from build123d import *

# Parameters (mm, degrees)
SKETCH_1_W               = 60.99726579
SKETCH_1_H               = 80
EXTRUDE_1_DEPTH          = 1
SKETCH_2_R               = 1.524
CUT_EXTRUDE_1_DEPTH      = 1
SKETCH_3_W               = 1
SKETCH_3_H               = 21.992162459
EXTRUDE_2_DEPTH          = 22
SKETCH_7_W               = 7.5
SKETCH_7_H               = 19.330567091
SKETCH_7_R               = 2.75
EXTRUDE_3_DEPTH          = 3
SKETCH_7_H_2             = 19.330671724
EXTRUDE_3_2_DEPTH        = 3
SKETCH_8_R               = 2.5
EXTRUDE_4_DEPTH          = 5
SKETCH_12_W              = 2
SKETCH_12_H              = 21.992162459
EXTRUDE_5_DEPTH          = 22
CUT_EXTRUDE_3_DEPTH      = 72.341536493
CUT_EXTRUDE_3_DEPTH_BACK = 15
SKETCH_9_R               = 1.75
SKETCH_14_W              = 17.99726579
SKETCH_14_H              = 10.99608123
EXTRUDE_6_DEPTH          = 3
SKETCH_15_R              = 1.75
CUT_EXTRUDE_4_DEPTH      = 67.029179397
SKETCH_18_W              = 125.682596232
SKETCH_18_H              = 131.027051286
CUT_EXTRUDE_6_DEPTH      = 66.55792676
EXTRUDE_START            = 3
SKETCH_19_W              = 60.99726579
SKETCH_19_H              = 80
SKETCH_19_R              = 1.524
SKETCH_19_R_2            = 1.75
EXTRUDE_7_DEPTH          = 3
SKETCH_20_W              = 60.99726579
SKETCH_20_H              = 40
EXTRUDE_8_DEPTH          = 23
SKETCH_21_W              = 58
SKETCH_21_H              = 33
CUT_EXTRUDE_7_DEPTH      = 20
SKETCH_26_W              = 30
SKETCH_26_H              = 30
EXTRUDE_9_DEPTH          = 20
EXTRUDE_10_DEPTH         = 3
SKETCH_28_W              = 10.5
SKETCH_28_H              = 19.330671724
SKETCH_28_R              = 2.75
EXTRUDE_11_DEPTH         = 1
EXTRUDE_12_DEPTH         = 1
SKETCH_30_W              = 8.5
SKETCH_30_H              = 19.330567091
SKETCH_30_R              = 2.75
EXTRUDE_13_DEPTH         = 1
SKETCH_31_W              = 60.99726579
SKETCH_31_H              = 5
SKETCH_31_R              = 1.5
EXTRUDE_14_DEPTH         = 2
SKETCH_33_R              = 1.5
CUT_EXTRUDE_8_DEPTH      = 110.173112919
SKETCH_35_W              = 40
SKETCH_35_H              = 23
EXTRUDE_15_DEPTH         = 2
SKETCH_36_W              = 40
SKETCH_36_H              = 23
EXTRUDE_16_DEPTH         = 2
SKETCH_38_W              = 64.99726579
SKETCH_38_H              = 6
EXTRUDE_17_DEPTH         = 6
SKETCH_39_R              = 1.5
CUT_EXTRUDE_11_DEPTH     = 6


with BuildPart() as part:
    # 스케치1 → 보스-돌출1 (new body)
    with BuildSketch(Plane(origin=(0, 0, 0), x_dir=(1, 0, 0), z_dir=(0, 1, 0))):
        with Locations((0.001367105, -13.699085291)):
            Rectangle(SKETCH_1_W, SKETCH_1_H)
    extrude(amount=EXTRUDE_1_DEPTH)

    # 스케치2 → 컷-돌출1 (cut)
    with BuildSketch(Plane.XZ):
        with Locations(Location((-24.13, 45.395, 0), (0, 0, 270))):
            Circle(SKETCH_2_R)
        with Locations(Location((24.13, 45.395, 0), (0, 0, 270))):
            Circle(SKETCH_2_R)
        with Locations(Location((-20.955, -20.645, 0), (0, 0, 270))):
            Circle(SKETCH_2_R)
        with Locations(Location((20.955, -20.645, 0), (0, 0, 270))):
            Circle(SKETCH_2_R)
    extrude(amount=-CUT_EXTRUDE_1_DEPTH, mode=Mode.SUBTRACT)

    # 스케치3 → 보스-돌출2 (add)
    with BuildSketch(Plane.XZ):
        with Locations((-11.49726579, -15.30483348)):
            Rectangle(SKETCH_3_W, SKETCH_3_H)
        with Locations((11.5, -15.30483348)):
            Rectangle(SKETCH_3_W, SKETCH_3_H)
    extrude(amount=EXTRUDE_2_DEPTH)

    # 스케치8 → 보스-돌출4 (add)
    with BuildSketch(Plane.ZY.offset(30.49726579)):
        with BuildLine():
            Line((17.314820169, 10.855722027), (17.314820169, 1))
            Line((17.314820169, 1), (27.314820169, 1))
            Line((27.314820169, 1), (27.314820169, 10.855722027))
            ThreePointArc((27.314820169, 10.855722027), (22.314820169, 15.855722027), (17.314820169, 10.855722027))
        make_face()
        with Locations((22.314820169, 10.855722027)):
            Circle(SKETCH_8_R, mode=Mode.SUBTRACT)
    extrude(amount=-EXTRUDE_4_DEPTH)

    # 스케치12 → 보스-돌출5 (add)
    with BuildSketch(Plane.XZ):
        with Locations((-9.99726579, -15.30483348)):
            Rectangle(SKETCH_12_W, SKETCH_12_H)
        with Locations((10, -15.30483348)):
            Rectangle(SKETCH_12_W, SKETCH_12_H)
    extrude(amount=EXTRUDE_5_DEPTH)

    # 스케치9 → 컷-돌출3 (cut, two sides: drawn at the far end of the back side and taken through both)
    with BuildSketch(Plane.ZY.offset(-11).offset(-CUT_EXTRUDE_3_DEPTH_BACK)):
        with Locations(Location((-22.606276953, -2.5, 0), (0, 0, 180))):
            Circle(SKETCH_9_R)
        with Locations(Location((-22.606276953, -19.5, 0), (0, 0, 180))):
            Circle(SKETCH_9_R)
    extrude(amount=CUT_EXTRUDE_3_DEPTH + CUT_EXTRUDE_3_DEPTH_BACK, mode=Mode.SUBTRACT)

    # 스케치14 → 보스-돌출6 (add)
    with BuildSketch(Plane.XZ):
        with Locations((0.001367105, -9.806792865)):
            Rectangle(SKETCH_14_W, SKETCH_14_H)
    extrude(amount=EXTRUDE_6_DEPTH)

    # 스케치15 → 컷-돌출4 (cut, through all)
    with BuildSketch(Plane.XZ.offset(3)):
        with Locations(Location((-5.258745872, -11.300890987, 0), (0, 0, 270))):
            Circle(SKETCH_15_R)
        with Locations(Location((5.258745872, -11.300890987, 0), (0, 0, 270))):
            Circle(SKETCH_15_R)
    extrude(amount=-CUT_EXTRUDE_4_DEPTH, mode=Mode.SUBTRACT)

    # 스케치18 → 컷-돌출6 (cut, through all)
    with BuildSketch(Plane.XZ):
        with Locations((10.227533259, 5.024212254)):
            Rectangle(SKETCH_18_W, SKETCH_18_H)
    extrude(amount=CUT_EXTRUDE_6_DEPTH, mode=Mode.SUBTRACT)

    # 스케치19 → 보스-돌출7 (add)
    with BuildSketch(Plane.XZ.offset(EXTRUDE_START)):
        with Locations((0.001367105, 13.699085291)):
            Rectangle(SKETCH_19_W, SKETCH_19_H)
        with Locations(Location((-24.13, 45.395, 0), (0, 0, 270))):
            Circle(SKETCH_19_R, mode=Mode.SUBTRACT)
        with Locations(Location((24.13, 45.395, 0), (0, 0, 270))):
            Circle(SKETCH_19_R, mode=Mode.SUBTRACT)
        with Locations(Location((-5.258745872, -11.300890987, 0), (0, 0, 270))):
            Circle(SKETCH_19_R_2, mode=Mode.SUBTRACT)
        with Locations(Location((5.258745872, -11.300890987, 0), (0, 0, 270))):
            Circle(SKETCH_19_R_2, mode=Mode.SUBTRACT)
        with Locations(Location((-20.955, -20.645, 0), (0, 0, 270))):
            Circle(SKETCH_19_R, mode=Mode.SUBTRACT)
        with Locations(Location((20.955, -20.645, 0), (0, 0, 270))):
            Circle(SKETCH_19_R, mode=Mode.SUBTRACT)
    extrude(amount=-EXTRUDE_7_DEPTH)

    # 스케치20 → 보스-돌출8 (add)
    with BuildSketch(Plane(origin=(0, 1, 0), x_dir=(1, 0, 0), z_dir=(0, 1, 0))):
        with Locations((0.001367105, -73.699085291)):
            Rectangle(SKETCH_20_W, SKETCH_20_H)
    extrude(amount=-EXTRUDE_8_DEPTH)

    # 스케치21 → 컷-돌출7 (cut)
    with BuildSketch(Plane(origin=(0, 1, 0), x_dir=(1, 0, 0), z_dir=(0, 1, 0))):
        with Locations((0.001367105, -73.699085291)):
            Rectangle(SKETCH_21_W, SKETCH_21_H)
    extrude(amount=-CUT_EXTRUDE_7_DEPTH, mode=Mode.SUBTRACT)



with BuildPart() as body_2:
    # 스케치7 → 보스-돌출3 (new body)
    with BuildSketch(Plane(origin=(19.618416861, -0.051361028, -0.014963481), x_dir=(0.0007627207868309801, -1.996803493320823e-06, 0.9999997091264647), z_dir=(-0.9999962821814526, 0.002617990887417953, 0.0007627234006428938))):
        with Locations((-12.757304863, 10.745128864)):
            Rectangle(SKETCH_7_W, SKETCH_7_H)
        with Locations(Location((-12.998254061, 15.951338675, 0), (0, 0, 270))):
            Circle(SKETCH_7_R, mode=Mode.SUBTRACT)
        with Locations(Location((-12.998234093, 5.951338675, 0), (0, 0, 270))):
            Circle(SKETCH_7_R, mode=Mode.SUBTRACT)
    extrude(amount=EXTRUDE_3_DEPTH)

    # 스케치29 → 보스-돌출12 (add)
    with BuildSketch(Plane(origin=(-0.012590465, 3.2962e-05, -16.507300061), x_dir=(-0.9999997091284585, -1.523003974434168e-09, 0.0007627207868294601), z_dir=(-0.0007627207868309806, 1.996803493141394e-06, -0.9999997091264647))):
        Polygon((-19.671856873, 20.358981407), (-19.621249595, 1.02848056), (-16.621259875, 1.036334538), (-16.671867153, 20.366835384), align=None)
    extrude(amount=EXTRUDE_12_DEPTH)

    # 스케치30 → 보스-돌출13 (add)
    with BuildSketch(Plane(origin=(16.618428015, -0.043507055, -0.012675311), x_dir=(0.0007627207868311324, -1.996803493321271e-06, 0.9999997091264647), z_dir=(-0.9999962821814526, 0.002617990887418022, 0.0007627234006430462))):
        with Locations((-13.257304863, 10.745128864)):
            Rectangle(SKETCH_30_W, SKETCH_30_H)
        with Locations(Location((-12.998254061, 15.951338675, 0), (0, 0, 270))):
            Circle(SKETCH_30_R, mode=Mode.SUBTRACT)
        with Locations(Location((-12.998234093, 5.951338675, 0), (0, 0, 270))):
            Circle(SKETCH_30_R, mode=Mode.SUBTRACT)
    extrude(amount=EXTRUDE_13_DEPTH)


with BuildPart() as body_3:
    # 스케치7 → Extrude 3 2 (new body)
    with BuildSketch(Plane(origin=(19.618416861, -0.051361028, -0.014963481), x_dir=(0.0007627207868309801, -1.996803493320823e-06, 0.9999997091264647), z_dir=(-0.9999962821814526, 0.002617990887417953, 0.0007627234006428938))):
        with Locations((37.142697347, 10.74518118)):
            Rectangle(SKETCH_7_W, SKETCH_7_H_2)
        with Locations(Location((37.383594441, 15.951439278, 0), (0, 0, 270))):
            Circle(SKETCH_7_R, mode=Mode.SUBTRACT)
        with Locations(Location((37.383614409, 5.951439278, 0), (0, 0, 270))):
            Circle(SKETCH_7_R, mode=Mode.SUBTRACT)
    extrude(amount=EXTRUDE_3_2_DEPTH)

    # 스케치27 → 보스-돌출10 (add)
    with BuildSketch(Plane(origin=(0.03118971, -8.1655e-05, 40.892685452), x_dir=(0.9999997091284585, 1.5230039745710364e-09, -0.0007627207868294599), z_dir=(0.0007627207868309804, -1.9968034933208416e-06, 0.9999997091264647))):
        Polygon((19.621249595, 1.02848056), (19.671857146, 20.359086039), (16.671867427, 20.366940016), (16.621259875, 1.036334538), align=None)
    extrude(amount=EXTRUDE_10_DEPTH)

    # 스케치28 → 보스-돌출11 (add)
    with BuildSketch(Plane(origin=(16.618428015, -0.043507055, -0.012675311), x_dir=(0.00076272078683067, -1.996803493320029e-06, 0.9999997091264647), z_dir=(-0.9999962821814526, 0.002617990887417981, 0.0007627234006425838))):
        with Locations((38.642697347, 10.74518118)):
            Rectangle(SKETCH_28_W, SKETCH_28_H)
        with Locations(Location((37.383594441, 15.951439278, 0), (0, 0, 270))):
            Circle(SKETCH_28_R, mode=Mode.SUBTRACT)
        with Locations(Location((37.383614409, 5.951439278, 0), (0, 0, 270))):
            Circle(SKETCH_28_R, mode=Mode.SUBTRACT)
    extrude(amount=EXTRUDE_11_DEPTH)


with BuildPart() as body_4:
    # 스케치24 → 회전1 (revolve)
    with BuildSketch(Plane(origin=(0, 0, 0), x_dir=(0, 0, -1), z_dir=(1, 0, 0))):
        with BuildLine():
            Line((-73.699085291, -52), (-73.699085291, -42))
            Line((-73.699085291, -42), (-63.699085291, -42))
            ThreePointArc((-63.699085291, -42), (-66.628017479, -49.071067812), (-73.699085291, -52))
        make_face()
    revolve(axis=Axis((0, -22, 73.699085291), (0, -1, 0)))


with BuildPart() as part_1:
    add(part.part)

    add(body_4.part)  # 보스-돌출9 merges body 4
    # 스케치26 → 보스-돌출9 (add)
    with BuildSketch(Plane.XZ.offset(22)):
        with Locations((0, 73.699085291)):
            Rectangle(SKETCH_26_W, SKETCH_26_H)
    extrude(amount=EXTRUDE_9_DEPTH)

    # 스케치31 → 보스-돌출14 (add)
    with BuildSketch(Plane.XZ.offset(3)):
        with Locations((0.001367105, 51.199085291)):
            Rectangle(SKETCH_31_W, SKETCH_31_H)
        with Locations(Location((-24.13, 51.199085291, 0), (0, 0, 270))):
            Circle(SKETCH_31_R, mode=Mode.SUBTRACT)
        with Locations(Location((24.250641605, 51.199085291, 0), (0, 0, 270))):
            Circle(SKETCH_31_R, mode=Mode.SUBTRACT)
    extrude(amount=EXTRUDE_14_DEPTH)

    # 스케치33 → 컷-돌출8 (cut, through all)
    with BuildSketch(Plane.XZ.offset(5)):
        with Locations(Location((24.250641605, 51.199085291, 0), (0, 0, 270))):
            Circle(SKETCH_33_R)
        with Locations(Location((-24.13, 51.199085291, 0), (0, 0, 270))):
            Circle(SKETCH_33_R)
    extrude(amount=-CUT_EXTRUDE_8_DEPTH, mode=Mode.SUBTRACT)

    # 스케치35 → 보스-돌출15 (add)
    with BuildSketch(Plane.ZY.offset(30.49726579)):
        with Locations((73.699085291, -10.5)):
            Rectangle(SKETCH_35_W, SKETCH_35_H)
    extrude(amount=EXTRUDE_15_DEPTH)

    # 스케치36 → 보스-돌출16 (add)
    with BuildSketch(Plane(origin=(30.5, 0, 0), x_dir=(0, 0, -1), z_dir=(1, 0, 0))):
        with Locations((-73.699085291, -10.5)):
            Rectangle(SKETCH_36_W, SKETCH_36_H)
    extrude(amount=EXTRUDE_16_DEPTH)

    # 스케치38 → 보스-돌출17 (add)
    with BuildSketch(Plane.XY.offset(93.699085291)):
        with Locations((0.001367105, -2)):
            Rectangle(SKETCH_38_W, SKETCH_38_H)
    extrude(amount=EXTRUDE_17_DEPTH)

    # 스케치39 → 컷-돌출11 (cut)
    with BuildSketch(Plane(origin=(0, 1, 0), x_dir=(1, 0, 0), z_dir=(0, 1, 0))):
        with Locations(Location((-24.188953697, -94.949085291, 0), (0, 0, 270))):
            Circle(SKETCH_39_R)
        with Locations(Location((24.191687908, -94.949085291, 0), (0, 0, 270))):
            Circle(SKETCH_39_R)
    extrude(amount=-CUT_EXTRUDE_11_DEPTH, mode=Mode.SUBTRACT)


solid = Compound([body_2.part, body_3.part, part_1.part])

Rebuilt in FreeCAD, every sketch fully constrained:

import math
import FreeCAD as App
import Part
import Sketcher
Q = App.Units.Quantity

doc = App.newDocument("Part")
body = doc.addObject("PartDesign::Body", "Body")

# Sketch on XZ plane
sketch1 = body.newObject("Sketcher::SketchObject", "Sketch")
sketch1.AttachmentSupport = (doc.getObject("XZ_Plane"), [""])
sketch1.MapMode = "FlatFace"
sketch1.addGeometry([
    Part.LineSegment(App.Vector(-30, -26, 0), App.Vector(-30, 54, 0)),
    Part.LineSegment(App.Vector(-30, 54, 0), App.Vector(30, 54, 0)),
    Part.LineSegment(App.Vector(30, 54, 0), App.Vector(30, -26, 0)),
    Part.LineSegment(App.Vector(30, -26, 0), App.Vector(-30, -26, 0)),
], False)
sketch1.addConstraint([
    Sketcher.Constraint("Coincident", 0, 2, 1, 1),
    Sketcher.Constraint("Coincident", 1, 2, 2, 1),
    Sketcher.Constraint("Coincident", 2, 2, 3, 1),
    Sketcher.Constraint("Coincident", 3, 2, 0, 1),
    Sketcher.Constraint("Vertical", 0),
    Sketcher.Constraint("Horizontal", 1),
    Sketcher.Constraint("Vertical", 2),
    Sketcher.Constraint("Horizontal", 3),
    Sketcher.Constraint("DistanceY", 0, 1, 0, 2, Q("80 mm")),
    Sketcher.Constraint("DistanceX", -1, 1, 1, 2, Q("30.5 mm")),
    Sketcher.Constraint("DistanceX", 1, 1, 1, 2, Q("60.997266 mm")),
    Sketcher.Constraint("DistanceY", -1, 1, 0, 2, Q("53.699085 mm")),
])
pad1 = body.newObject("PartDesign::Pad", "Pad")
pad1.Profile = sketch1
pad1.Length = 1
pad1.Reversed = True

# Sketch on XZ plane
sketch2 = body.newObject("Sketcher::SketchObject", "Sketch001")
sketch2.AttachmentSupport = (doc.getObject("XZ_Plane"), [""])
sketch2.MapMode = "FlatFace"
sketch2.addGeometry([
    Part.Circle(App.Vector(-24.1, 45.4, 0), App.Vector(0, 0, 1), 1.5),
    Part.Circle(App.Vector(24.1, 45.4, 0), App.Vector(0, 0, 1), 1.5),
    Part.Circle(App.Vector(-21, -20.6, 0), App.Vector(0, 0, 1), 1.5),
    Part.Circle(App.Vector(21, -20.6, 0), App.Vector(0, 0, 1), 1.5),
], False)
sketch2.addConstraint([
    Sketcher.Constraint("Equal", 0, 1),
    Sketcher.Constraint("Equal", 1, 2),
    Sketcher.Constraint("Equal", 2, 3),
    Sketcher.Constraint("Symmetric", 0, 3, 1, 3, -2),
    Sketcher.Constraint("Symmetric", 2, 3, 3, 3, -2),
    Sketcher.Constraint("Diameter", 0, Q("3.048 mm")),
    Sketcher.Constraint("DistanceX", 0, 3, -1, 1, Q("24.13 mm")),
    Sketcher.Constraint("DistanceY", 2, 3, 0, 3, Q("66.04 mm")),
    Sketcher.Constraint("DistanceX", 2, 3, 3, 3, Q("41.91 mm")),
    Sketcher.Constraint("DistanceY", -1, 1, 0, 3, Q("45.395 mm")),
])
pocket1 = body.newObject("PartDesign::Pocket", "Pocket")
pocket1.Profile = sketch2
pocket1.Length = 1

# Sketch on XZ plane
sketch3 = body.newObject("Sketcher::SketchObject", "Sketch002")
sketch3.AttachmentSupport = (doc.getObject("XZ_Plane"), [""])
sketch3.MapMode = "FlatFace"
sketch3.addGeometry([
    Part.LineSegment(App.Vector(-12, -4.3, 0), App.Vector(-12, -26.3, 0)),  # 0
    Part.LineSegment(App.Vector(-12, -26.3, 0), App.Vector(-11, -26.3, 0)),  # 1
    Part.LineSegment(App.Vector(-11, -26.3, 0), App.Vector(-11, -4.3, 0)),  # 2
    Part.LineSegment(App.Vector(-11, -4.3, 0), App.Vector(-12, -4.3, 0)),  # 3
    Part.LineSegment(App.Vector(11, -4.3, 0), App.Vector(11, -26.3, 0)),  # 4
    Part.LineSegment(App.Vector(11, -26.3, 0), App.Vector(12, -26.3, 0)),  # 5
    Part.LineSegment(App.Vector(12, -26.3, 0), App.Vector(12, -4.3, 0)),  # 6
    Part.LineSegment(App.Vector(12, -4.3, 0), App.Vector(11, -4.3, 0)),  # 7
], False)
sketch3.addConstraint([
    Sketcher.Constraint("Coincident", 0, 2, 1, 1),
    Sketcher.Constraint("Coincident", 1, 2, 2, 1),
    Sketcher.Constraint("Coincident", 2, 2, 3, 1),
    Sketcher.Constraint("Coincident", 3, 2, 0, 1),
    Sketcher.Constraint("Coincident", 4, 2, 5, 1),
    Sketcher.Constraint("Coincident", 5, 2, 6, 1),
    Sketcher.Constraint("Coincident", 6, 2, 7, 1),
    Sketcher.Constraint("Coincident", 7, 2, 4, 1),
    Sketcher.Constraint("Vertical", 0),
    Sketcher.Constraint("Horizontal", 1),
    Sketcher.Constraint("Vertical", 2),
    Sketcher.Constraint("Horizontal", 3),
    Sketcher.Constraint("Vertical", 4),
    Sketcher.Constraint("Horizontal", 5),
    Sketcher.Constraint("Vertical", 6),
    Sketcher.Constraint("Horizontal", 7),
    Sketcher.Constraint("Horizontal", 1, 2, 4, 2),
    Sketcher.Constraint("Horizontal", 3, 2, 6, 2),
    Sketcher.Constraint("Equal", 3, 5),
    Sketcher.Constraint("DistanceX", 1, 1, 1, 2, Q("1 mm")),
    Sketcher.Constraint("DistanceX", -1, 1, 4, 2, Q("11 mm")),
    Sketcher.Constraint("DistanceY", 0, 2, 0, 1, Q("21.992162 mm")),
    Sketcher.Constraint("DistanceX", 0, 2, -1, 1, Q("11.997266 mm")),
    Sketcher.Constraint("DistanceY", 0, 2, -1, 1, Q("26.300915 mm")),
])
pad2 = body.newObject("PartDesign::Pad", "Pad001")
pad2.Profile = sketch3
pad2.Length = 22

# Sketch on YZ plane
sketch4 = body.newObject("Sketcher::SketchObject", "Sketch003")
sketch4.AttachmentSupport = (doc.getObject("YZ_Plane"), [""])
sketch4.MapMode = "FlatFace"
sketch4.AttachmentOffset = App.Placement(App.Vector(0, 0, -30.497266), App.Rotation())
sketch4.addGeometry([
    Part.LineSegment(App.Vector(10.9, 17.3, 0), App.Vector(1, 17.3, 0)),  # 0
    Part.LineSegment(App.Vector(1, 17.3, 0), App.Vector(1, 27.3, 0)),  # 1
    Part.LineSegment(App.Vector(1, 27.3, 0), App.Vector(10.9, 27.3, 0)),  # 2
    Part.ArcOfCircle(Part.Circle(App.Vector(10.9, 22.3, 0), App.Vector(0, 0, 1), 5), math.radians(-90), math.radians(90)),  # 3
    Part.Circle(App.Vector(10.9, 22.3, 0), App.Vector(0, 0, 1), 2.5),  # 4
], False)
sketch4.addConstraint([
    Sketcher.Constraint("Coincident", 0, 2, 1, 1),
    Sketcher.Constraint("Coincident", 1, 2, 2, 1),
    Sketcher.Constraint("Tangent", 2, 2, 3, 2),
    Sketcher.Constraint("Tangent", 3, 1, 0, 1),
    Sketcher.Constraint("Horizontal", 0),
    Sketcher.Constraint("Vertical", 1),
    Sketcher.Constraint("Horizontal", 2),
    Sketcher.Constraint("Coincident", 4, 3, 3, 3),
    Sketcher.Constraint("Diameter", 4, Q("5 mm")),
    Sketcher.Constraint("Radius", 3, Q("5 mm")),
    Sketcher.Constraint("DistanceX", -1, 1, 0, 2, Q("1 mm")),
    Sketcher.Constraint("DistanceX", 0, 2, 0, 1, Q("9.855722 mm")),
    Sketcher.Constraint("DistanceY", -1, 1, 3, 3, Q("22.31482 mm")),
])
pad3 = body.newObject("PartDesign::Pad", "Pad002")
pad3.Profile = sketch4
pad3.Length = 5

# Sketch on XZ plane
sketch5 = body.newObject("Sketcher::SketchObject", "Sketch004")
sketch5.AttachmentSupport = (doc.getObject("XZ_Plane"), [""])
sketch5.MapMode = "FlatFace"
sketch5.addGeometry([
    Part.LineSegment(App.Vector(-11, -4.3, 0), App.Vector(-11, -26.3, 0)),  # 0
    Part.LineSegment(App.Vector(-11, -26.3, 0), App.Vector(-9, -26.3, 0)),  # 1
    Part.LineSegment(App.Vector(-9, -26.3, 0), App.Vector(-9, -4.3, 0)),  # 2
    Part.LineSegment(App.Vector(-9, -4.3, 0), App.Vector(-11, -4.3, 0)),  # 3
    Part.LineSegment(App.Vector(9, -4.3, 0), App.Vector(9, -26.3, 0)),  # 4
    Part.LineSegment(App.Vector(9, -26.3, 0), App.Vector(11, -26.3, 0)),  # 5
    Part.LineSegment(App.Vector(11, -26.3, 0), App.Vector(11, -4.3, 0)),  # 6
    Part.LineSegment(App.Vector(11, -4.3, 0), App.Vector(9, -4.3, 0)),  # 7
], False)
sketch5.addConstraint([
    Sketcher.Constraint("Coincident", 0, 2, 1, 1),
    Sketcher.Constraint("Coincident", 1, 2, 2, 1),
    Sketcher.Constraint("Coincident", 2, 2, 3, 1),
    Sketcher.Constraint("Coincident", 3, 2, 0, 1),
    Sketcher.Constraint("Coincident", 4, 2, 5, 1),
    Sketcher.Constraint("Coincident", 5, 2, 6, 1),
    Sketcher.Constraint("Coincident", 6, 2, 7, 1),
    Sketcher.Constraint("Coincident", 7, 2, 4, 1),
    Sketcher.Constraint("Vertical", 0),
    Sketcher.Constraint("Horizontal", 1),
    Sketcher.Constraint("Vertical", 2),
    Sketcher.Constraint("Horizontal", 3),
    Sketcher.Constraint("Vertical", 4),
    Sketcher.Constraint("Horizontal", 5),
    Sketcher.Constraint("Vertical", 6),
    Sketcher.Constraint("Horizontal", 7),
    Sketcher.Constraint("Horizontal", 1, 2, 4, 2),
    Sketcher.Constraint("Horizontal", 3, 2, 6, 2),
    Sketcher.Constraint("Equal", 3, 5),
    Sketcher.Constraint("DistanceX", 1, 1, 1, 2, Q("2 mm")),
    Sketcher.Constraint("DistanceX", -1, 1, 4, 2, Q("9 mm")),
    Sketcher.Constraint("DistanceY", 0, 2, 0, 1, Q("21.992162 mm")),
    Sketcher.Constraint("DistanceX", 0, 2, -1, 1, Q("10.997266 mm")),
    Sketcher.Constraint("DistanceY", 0, 2, -1, 1, Q("26.300915 mm")),
])
pad4 = body.newObject("PartDesign::Pad", "Pad003")
pad4.Profile = sketch5
pad4.Length = 22

# Sketch on YZ plane
sketch6 = body.newObject("Sketcher::SketchObject", "Sketch005")
sketch6.AttachmentSupport = (doc.getObject("YZ_Plane"), [""])
sketch6.MapMode = "FlatFace"
sketch6.AttachmentOffset = App.Placement(App.Vector(0, 0, 11), App.Rotation())
sketch6.addGeometry([
    Part.Circle(App.Vector(-2.5, -22.6, 0), App.Vector(0, 0, 1), 1.8),
    Part.Circle(App.Vector(-19.5, -22.6, 0), App.Vector(0, 0, 1), 1.8),
], False)
sketch6.addConstraint([
    Sketcher.Constraint("Equal", 0, 1),
    Sketcher.Constraint("Horizontal", 0, 3, 1, 3),
    Sketcher.Constraint("Diameter", 0, Q("3.5 mm")),
    Sketcher.Constraint("DistanceX", 1, 3, 0, 3, Q("17 mm")),
    Sketcher.Constraint("DistanceX", 0, 3, -1, 1, Q("2.5 mm")),
    Sketcher.Constraint("DistanceY", 0, 3, -1, 1, Q("22.606277 mm")),
])
pocket2 = body.newObject("PartDesign::Pocket", "Pocket001")
pocket2.Profile = sketch6
pocket2.Type = "ThroughAll"
pocket2.Midplane = True

# Sketch on XZ plane
sketch7 = body.newObject("Sketcher::SketchObject", "Sketch006")
sketch7.AttachmentSupport = (doc.getObject("XZ_Plane"), [""])
sketch7.MapMode = "FlatFace"
sketch7.addGeometry([
    Part.LineSegment(App.Vector(-9, -4, 0), App.Vector(-9, -15, 0)),
    Part.LineSegment(App.Vector(-9, -15, 0), App.Vector(9, -15, 0)),
    Part.LineSegment(App.Vector(9, -15, 0), App.Vector(9, -4, 0)),
    Part.LineSegment(App.Vector(9, -4, 0), App.Vector(-9, -4, 0)),
], False)
sketch7.addConstraint([
    Sketcher.Constraint("Coincident", 0, 2, 1, 1),
    Sketcher.Constraint("Coincident", 1, 2, 2, 1),
    Sketcher.Constraint("Coincident", 2, 2, 3, 1),
    Sketcher.Constraint("Coincident", 3, 2, 0, 1),
    Sketcher.Constraint("Vertical", 0),
    Sketcher.Constraint("Horizontal", 1),
    Sketcher.Constraint("Vertical", 2),
    Sketcher.Constraint("Horizontal", 3),
    Sketcher.Constraint("DistanceX", -1, 1, 1, 2, Q("9 mm")),
    Sketcher.Constraint("DistanceY", 0, 2, 0, 1, Q("10.996081 mm")),
    Sketcher.Constraint("DistanceX", 1, 1, 1, 2, Q("17.997266 mm")),
    Sketcher.Constraint("DistanceY", 0, 2, -1, 1, Q("15.304833 mm")),
])
pad5 = body.newObject("PartDesign::Pad", "Pad004")
pad5.Profile = sketch7
pad5.Length = 3

# Sketch on XZ plane
sketch8 = body.newObject("Sketcher::SketchObject", "Sketch007")
sketch8.AttachmentSupport = (doc.getObject("XZ_Plane"), [""])
sketch8.MapMode = "FlatFace"
sketch8.AttachmentOffset = App.Placement(App.Vector(0, 0, 3), App.Rotation())
sketch8.addGeometry([
    Part.Circle(App.Vector(-5.3, -11.3, 0), App.Vector(0, 0, 1), 1.8),
    Part.Circle(App.Vector(5.3, -11.3, 0), App.Vector(0, 0, 1), 1.8),
], False)
sketch8.addConstraint([
    Sketcher.Constraint("Equal", 0, 1),
    Sketcher.Constraint("Symmetric", 0, 3, 1, 3, -2),
    Sketcher.Constraint("Diameter", 0, Q("3.5 mm")),
    Sketcher.Constraint("DistanceY", 0, 3, -1, 1, Q("11.300891 mm")),
    Sketcher.Constraint("DistanceX", 0, 3, 1, 3, Q("10.517492 mm")),
])
pocket3 = body.newObject("PartDesign::Pocket", "Pocket002")
pocket3.Profile = sketch8
pocket3.Type = "ThroughAll"

# Sketch on XZ plane
sketch9 = body.newObject("Sketcher::SketchObject", "Sketch008")
sketch9.AttachmentSupport = (doc.getObject("XZ_Plane"), [""])
sketch9.MapMode = "FlatFace"
sketch9.addGeometry([
    Part.LineSegment(App.Vector(-53, 71, 0), App.Vector(-53, -60, 0)),
    Part.LineSegment(App.Vector(-53, -60, 0), App.Vector(73, -60, 0)),
    Part.LineSegment(App.Vector(73, -60, 0), App.Vector(73, 71, 0)),
    Part.LineSegment(App.Vector(73, 71, 0), App.Vector(-53, 71, 0)),
], False)
sketch9.addConstraint([
    Sketcher.Constraint("Coincident", 0, 2, 1, 1),
    Sketcher.Constraint("Coincident", 1, 2, 2, 1),
    Sketcher.Constraint("Coincident", 2, 2, 3, 1),
    Sketcher.Constraint("Coincident", 3, 2, 0, 1),
    Sketcher.Constraint("Vertical", 0),
    Sketcher.Constraint("Horizontal", 1),
    Sketcher.Constraint("Vertical", 2),
    Sketcher.Constraint("Horizontal", 3),
    Sketcher.Constraint("DistanceY", 0, 2, 0, 1, Q("131.027051 mm")),
    Sketcher.Constraint("DistanceX", 1, 1, 1, 2, Q("125.682596 mm")),
    Sketcher.Constraint("DistanceX", -1, 1, 1, 2, Q("73.068831 mm")),
    Sketcher.Constraint("DistanceY", 0, 2, -1, 1, Q("60.489313 mm")),
])
pocket4 = body.newObject("PartDesign::Pocket", "Pocket003")
pocket4.Profile = sketch9
pocket4.Type = "ThroughAll"
pocket4.Reversed = True

# Sketch on XZ plane
sketch10 = body.newObject("Sketcher::SketchObject", "Sketch009")
sketch10.AttachmentSupport = (doc.getObject("XZ_Plane"), [""])
sketch10.MapMode = "FlatFace"
sketch10.AttachmentOffset = App.Placement(App.Vector(0, 0, 3), App.Rotation())
sketch10.addGeometry([
    Part.LineSegment(App.Vector(-30.5, 53.7, 0), App.Vector(-30.5, -26.3, 0)),  # 0
    Part.LineSegment(App.Vector(-30.5, -26.3, 0), App.Vector(30.5, -26.3, 0)),  # 1
    Part.LineSegment(App.Vector(30.5, -26.3, 0), App.Vector(30.5, 53.7, 0)),  # 2
    Part.LineSegment(App.Vector(30.5, 53.7, 0), App.Vector(-30.5, 53.7, 0)),  # 3
    Part.Circle(App.Vector(-21, -20.6, 0), App.Vector(0, 0, 1), 1.5),  # 4
    Part.Circle(App.Vector(-5.3, -11.3, 0), App.Vector(0, 0, 1), 1.8),  # 5
    Part.Circle(App.Vector(5.3, -11.3, 0), App.Vector(0, 0, 1), 1.8),  # 6
    Part.Circle(App.Vector(21, -20.6, 0), App.Vector(0, 0, 1), 1.5),  # 7
    Part.Circle(App.Vector(-24.1, 45.4, 0), App.Vector(0, 0, 1), 1.5),  # 8
    Part.Circle(App.Vector(24.1, 45.4, 0), App.Vector(0, 0, 1), 1.5),  # 9
], False)
sketch10.addConstraint([
    Sketcher.Constraint("Coincident", 0, 2, 1, 1),
    Sketcher.Constraint("Coincident", 1, 2, 2, 1),
    Sketcher.Constraint("Coincident", 2, 2, 3, 1),
    Sketcher.Constraint("Coincident", 3, 2, 0, 1),
    Sketcher.Constraint("Vertical", 0),
    Sketcher.Constraint("Horizontal", 1),
    Sketcher.Constraint("Vertical", 2),
    Sketcher.Constraint("Horizontal", 3),
    Sketcher.Constraint("Equal", 5, 6),
    Sketcher.Constraint("Equal", 4, 7),
    Sketcher.Constraint("Equal", 7, 8),
    Sketcher.Constraint("Equal", 8, 9),
    Sketcher.Constraint("Symmetric", 5, 3, 6, 3, -2),
    Sketcher.Constraint("Symmetric", 4, 3, 7, 3, -2),
    Sketcher.Constraint("Symmetric", 8, 3, 9, 3, -2),
    Sketcher.Constraint("Diameter", 5, Q("3.5 mm")),
    Sketcher.Constraint("DistanceY", 0, 2, 0, 1, Q("80 mm")),
    Sketcher.Constraint("Diameter", 4, Q("3.048 mm")),
    Sketcher.Constraint("DistanceX", -1, 1, 1, 2, Q("30.5 mm")),
    Sketcher.Constraint("DistanceX", 8, 3, -1, 1, Q("24.13 mm")),
    Sketcher.Constraint("DistanceX", 4, 3, 7, 3, Q("41.91 mm")),
    Sketcher.Constraint("DistanceY", 4, 3, 8, 3, Q("66.04 mm")),
    Sketcher.Constraint("DistanceY", 4, 3, -1, 1, Q("20.645 mm")),
    Sketcher.Constraint("DistanceX", 1, 1, 1, 2, Q("60.997266 mm")),
    Sketcher.Constraint("DistanceY", 5, 3, -1, 1, Q("11.300891 mm")),
    Sketcher.Constraint("DistanceX", 5, 3, 6, 3, Q("10.517492 mm")),
    Sketcher.Constraint("DistanceY", 0, 2, -1, 1, Q("26.300915 mm")),
])
pad6 = body.newObject("PartDesign::Pad", "Pad005")
pad6.Profile = sketch10
pad6.Length = 3
pad6.Reversed = True

# Sketch on XZ plane
sketch11 = body.newObject("Sketcher::SketchObject", "Sketch010")
sketch11.AttachmentSupport = (doc.getObject("XZ_Plane"), [""])
sketch11.MapMode = "FlatFace"
sketch11.AttachmentOffset = App.Placement(App.Vector(0, 0, -1), App.Rotation())
sketch11.addGeometry([
    Part.LineSegment(App.Vector(-30, 54, 0), App.Vector(-30, 94, 0)),
    Part.LineSegment(App.Vector(-30, 94, 0), App.Vector(30, 94, 0)),
    Part.LineSegment(App.Vector(30, 94, 0), App.Vector(30, 54, 0)),
    Part.LineSegment(App.Vector(30, 54, 0), App.Vector(-30, 54, 0)),
], False)
sketch11.addConstraint([
    Sketcher.Constraint("Coincident", 0, 2, 1, 1),
    Sketcher.Constraint("Coincident", 1, 2, 2, 1),
    Sketcher.Constraint("Coincident", 2, 2, 3, 1),
    Sketcher.Constraint("Coincident", 3, 2, 0, 1),
    Sketcher.Constraint("Vertical", 0),
    Sketcher.Constraint("Horizontal", 1),
    Sketcher.Constraint("Vertical", 2),
    Sketcher.Constraint("Horizontal", 3),
    Sketcher.Constraint("DistanceY", 0, 1, 0, 2, Q("40 mm")),
    Sketcher.Constraint("DistanceX", -1, 1, 1, 2, Q("30.5 mm")),
    Sketcher.Constraint("DistanceX", 1, 1, 1, 2, Q("60.997266 mm")),
    Sketcher.Constraint("DistanceY", -1, 1, 0, 2, Q("93.699085 mm")),
])
pad7 = body.newObject("PartDesign::Pad", "Pad006")
pad7.Profile = sketch11
pad7.Length = 23

# Sketch on XZ plane
sketch12 = body.newObject("Sketcher::SketchObject", "Sketch011")
sketch12.AttachmentSupport = (doc.getObject("XZ_Plane"), [""])
sketch12.MapMode = "FlatFace"
sketch12.AttachmentOffset = App.Placement(App.Vector(0, 0, -1), App.Rotation())
sketch12.addGeometry([
    Part.LineSegment(App.Vector(-29, 57, 0), App.Vector(-29, 90, 0)),
    Part.LineSegment(App.Vector(-29, 90, 0), App.Vector(29, 90, 0)),
    Part.LineSegment(App.Vector(29, 90, 0), App.Vector(29, 57, 0)),
    Part.LineSegment(App.Vector(29, 57, 0), App.Vector(-29, 57, 0)),
], False)
sketch12.addConstraint([
    Sketcher.Constraint("Coincident", 0, 2, 1, 1),
    Sketcher.Constraint("Coincident", 1, 2, 2, 1),
    Sketcher.Constraint("Coincident", 2, 2, 3, 1),
    Sketcher.Constraint("Coincident", 3, 2, 0, 1),
    Sketcher.Constraint("Vertical", 0),
    Sketcher.Constraint("Horizontal", 1),
    Sketcher.Constraint("Vertical", 2),
    Sketcher.Constraint("Horizontal", 3),
    Sketcher.Constraint("DistanceX", 1, 1, 1, 2, Q("58 mm")),
    Sketcher.Constraint("DistanceY", 0, 1, 0, 2, Q("33 mm")),
    Sketcher.Constraint("DistanceX", 0, 2, -1, 1, Q("28.998633 mm")),
    Sketcher.Constraint("DistanceY", -1, 1, 0, 2, Q("90.199085 mm")),
])
pocket5 = body.newObject("PartDesign::Pocket", "Pocket004")
pocket5.Profile = sketch12
pocket5.Length = 20
pocket5.Reversed = True
body2 = doc.addObject("PartDesign::Body", "Body001")

# Sketch on an angled plane
sketch13 = body2.newObject("Sketcher::SketchObject", "Sketch012")
sketch13.Placement = App.Placement(App.Vector(19.618417, -0.051361, -0.014963), App.Rotation(App.Vector(0.000762721, -0.000001997, 0.999999709), App.Vector(0.002617992, 0.999996573, 0), App.Vector(-0.999996282, 0.002617991, 0.000762723), "ZXY"))
sketch13.addGeometry([
    Part.LineSegment(App.Vector(-16.5, 20.4, 0), App.Vector(-16.5, 1.1, 0)),  # 0
    Part.LineSegment(App.Vector(-16.5, 1.1, 0), App.Vector(-9, 1.1, 0)),  # 1
    Part.LineSegment(App.Vector(-9, 1.1, 0), App.Vector(-9, 20.4, 0)),  # 2
    Part.LineSegment(App.Vector(-9, 20.4, 0), App.Vector(-16.5, 20.4, 0)),  # 3
    Part.Circle(App.Vector(-13, 6, 0), App.Vector(0, 0, 1), 2.8),  # 4
    Part.Circle(App.Vector(-13, 16, 0), App.Vector(0, 0, 1), 2.8),  # 5
], False)
sketch13.addConstraint([
    Sketcher.Constraint("Coincident", 0, 2, 1, 1),
    Sketcher.Constraint("Coincident", 1, 2, 2, 1),
    Sketcher.Constraint("Coincident", 2, 2, 3, 1),
    Sketcher.Constraint("Coincident", 3, 2, 0, 1),
    Sketcher.Constraint("Vertical", 0),
    Sketcher.Constraint("Horizontal", 1),
    Sketcher.Constraint("Vertical", 2),
    Sketcher.Constraint("Horizontal", 3),
    Sketcher.Constraint("Equal", 4, 5),
    Sketcher.Constraint("Diameter", 4, Q("5.5 mm")),
    Sketcher.Constraint("DistanceX", 1, 1, 1, 2, Q("7.5 mm")),
    Sketcher.Constraint("DistanceY", 4, 3, 5, 3, Q("10 mm")),
    Sketcher.Constraint("DistanceY", 0, 2, 0, 1, Q("19.330567 mm")),
    Sketcher.Constraint("DistanceY", -1, 1, 4, 3, Q("5.951339 mm")),
    Sketcher.Constraint("DistanceX", 0, 2, 4, 3, Q("3.509071 mm")),
    Sketcher.Constraint("DistanceX", 0, 2, 5, 3, Q("3.509051 mm")),
    Sketcher.Constraint("DistanceX", 4, 3, -1, 1, Q("12.998234 mm")),
    Sketcher.Constraint("DistanceY", -1, 1, 0, 2, Q("1.079845 mm")),
])
pad8 = body2.newObject("PartDesign::Pad", "Pad007")
pad8.Profile = sketch13
pad8.Length = 3

# Sketch on an angled plane
sketch14 = body2.newObject("Sketcher::SketchObject", "Sketch013")
sketch14.Placement = App.Placement(App.Vector(-0.01259, 0.000033, -16.5073), App.Rotation(App.Vector(-0.999999709, -0.000000002, 0.000762721), App.Vector(0, 1, 0.000001997), App.Vector(-0.000762721, 0.000001997, -0.999999709), "ZXY"))
sketch14.addGeometry([
    Part.LineSegment(App.Vector(-19.7, 20.4, 0), App.Vector(-19.6, 1, 0)),
    Part.LineSegment(App.Vector(-19.6, 1, 0), App.Vector(-16.6, 1, 0)),
    Part.LineSegment(App.Vector(-16.6, 1, 0), App.Vector(-16.7, 20.4, 0)),
    Part.LineSegment(App.Vector(-16.7, 20.4, 0), App.Vector(-19.7, 20.4, 0)),
], False)
sketch14.addConstraint([
    Sketcher.Constraint("Coincident", 0, 2, 1, 1),
    Sketcher.Constraint("Coincident", 1, 2, 2, 1),
    Sketcher.Constraint("Coincident", 2, 2, 3, 1),
    Sketcher.Constraint("Coincident", 3, 2, 0, 1),
    Sketcher.Constraint("Perpendicular", 0, 1),
    Sketcher.Constraint("Perpendicular", 1, 2),
    Sketcher.Constraint("Perpendicular", 2, 3),
    Sketcher.Constraint("Distance", 1, Q("3 mm")),
    Sketcher.Constraint("Angle", 0, Q("-89.85 deg")),
    Sketcher.Constraint("DistanceY", 1, 2, 2, 2, Q("19.330501 mm")),
    Sketcher.Constraint("DistanceX", 0, 2, -1, 1, Q("19.62125 mm")),
    Sketcher.Constraint("DistanceY", -1, 1, 0, 2, Q("1.028481 mm")),
])
pad9 = body2.newObject("PartDesign::Pad", "Pad008")
pad9.Profile = sketch14
pad9.Length = 1

# Sketch on an angled plane
sketch15 = body2.newObject("Sketcher::SketchObject", "Sketch014")
sketch15.Placement = App.Placement(App.Vector(16.618428, -0.043507, -0.012675), App.Rotation(App.Vector(0.000762721, -0.000001997, 0.999999709), App.Vector(0.002617992, 0.999996573, 0), App.Vector(-0.999996282, 0.002617991, 0.000762723), "ZXY"))
sketch15.addGeometry([
    Part.LineSegment(App.Vector(-17.5, 20.4, 0), App.Vector(-17.5, 1.1, 0)),  # 0
    Part.LineSegment(App.Vector(-17.5, 1.1, 0), App.Vector(-9, 1.1, 0)),  # 1
    Part.LineSegment(App.Vector(-9, 1.1, 0), App.Vector(-9, 20.4, 0)),  # 2
    Part.LineSegment(App.Vector(-9, 20.4, 0), App.Vector(-17.5, 20.4, 0)),  # 3
    Part.Circle(App.Vector(-13, 6, 0), App.Vector(0, 0, 1), 2.8),  # 4
    Part.Circle(App.Vector(-13, 16, 0), App.Vector(0, 0, 1), 2.8),  # 5
], False)
sketch15.addConstraint([
    Sketcher.Constraint("Coincident", 0, 2, 1, 1),
    Sketcher.Constraint("Coincident", 1, 2, 2, 1),
    Sketcher.Constraint("Coincident", 2, 2, 3, 1),
    Sketcher.Constraint("Coincident", 3, 2, 0, 1),
    Sketcher.Constraint("Vertical", 0),
    Sketcher.Constraint("Horizontal", 1),
    Sketcher.Constraint("Vertical", 2),
    Sketcher.Constraint("Horizontal", 3),
    Sketcher.Constraint("Equal", 4, 5),
    Sketcher.Constraint("Diameter", 4, Q("5.5 mm")),
    Sketcher.Constraint("DistanceX", 1, 1, 1, 2, Q("8.5 mm")),
    Sketcher.Constraint("DistanceY", 4, 3, 5, 3, Q("10 mm")),
    Sketcher.Constraint("DistanceY", 0, 2, 0, 1, Q("19.330567 mm")),
    Sketcher.Constraint("DistanceY", -1, 1, 4, 3, Q("5.951339 mm")),
    Sketcher.Constraint("DistanceX", 0, 2, 4, 3, Q("4.509071 mm")),
    Sketcher.Constraint("DistanceX", 0, 2, 5, 3, Q("4.509051 mm")),
    Sketcher.Constraint("DistanceX", 4, 3, -1, 1, Q("12.998234 mm")),
    Sketcher.Constraint("DistanceY", -1, 1, 0, 2, Q("1.079845 mm")),
])
pad10 = body2.newObject("PartDesign::Pad", "Pad009")
pad10.Profile = sketch15
pad10.Length = 1
body3 = doc.addObject("PartDesign::Body", "Body002")

# Sketch on an angled plane
sketch16 = body3.newObject("Sketcher::SketchObject", "Sketch015")
sketch16.Placement = App.Placement(App.Vector(19.618417, -0.051361, -0.014963), App.Rotation(App.Vector(0.000762721, -0.000001997, 0.999999709), App.Vector(0.002617992, 0.999996573, 0), App.Vector(-0.999996282, 0.002617991, 0.000762723), "ZXY"))
sketch16.addGeometry([
    Part.LineSegment(App.Vector(33.4, 20.4, 0), App.Vector(33.4, 1.1, 0)),  # 0
    Part.LineSegment(App.Vector(33.4, 1.1, 0), App.Vector(40.9, 1.1, 0)),  # 1
    Part.LineSegment(App.Vector(40.9, 1.1, 0), App.Vector(40.9, 20.4, 0)),  # 2
    Part.LineSegment(App.Vector(40.9, 20.4, 0), App.Vector(33.4, 20.4, 0)),  # 3
    Part.Circle(App.Vector(37.4, 6, 0), App.Vector(0, 0, 1), 2.8),  # 4
    Part.Circle(App.Vector(37.4, 16, 0), App.Vector(0, 0, 1), 2.8),  # 5
], False)
sketch16.addConstraint([
    Sketcher.Constraint("Coincident", 0, 2, 1, 1),
    Sketcher.Constraint("Coincident", 1, 2, 2, 1),
    Sketcher.Constraint("Coincident", 2, 2, 3, 1),
    Sketcher.Constraint("Coincident", 3, 2, 0, 1),
    Sketcher.Constraint("Vertical", 0),
    Sketcher.Constraint("Horizontal", 1),
    Sketcher.Constraint("Vertical", 2),
    Sketcher.Constraint("Horizontal", 3),
    Sketcher.Constraint("Equal", 4, 5),
    Sketcher.Constraint("Diameter", 4, Q("5.5 mm")),
    Sketcher.Constraint("DistanceX", 1, 1, 1, 2, Q("7.5 mm")),
    Sketcher.Constraint("DistanceY", 4, 3, 5, 3, Q("10 mm")),
    Sketcher.Constraint("DistanceY", 0, 2, 0, 1, Q("19.330672 mm")),
    Sketcher.Constraint("DistanceY", -1, 1, 4, 3, Q("5.951439 mm")),
    Sketcher.Constraint("DistanceX", -1, 1, 4, 3, Q("37.383614 mm")),
    Sketcher.Constraint("DistanceX", -1, 1, 5, 3, Q("37.383594 mm")),
    Sketcher.Constraint("DistanceX", -1, 1, 0, 2, Q("33.392697 mm")),
    Sketcher.Constraint("DistanceY", -1, 1, 0, 2, Q("1.079845 mm")),
])
pad11 = body3.newObject("PartDesign::Pad", "Pad010")
pad11.Profile = sketch16
pad11.Length = 3

# Sketch on an angled plane
sketch17 = body3.newObject("Sketcher::SketchObject", "Sketch016")
sketch17.Placement = App.Placement(App.Vector(0.03119, -0.000082, 40.892685), App.Rotation(App.Vector(0.999999709, 0.000000002, -0.000762721), App.Vector(0, 1, 0.000001997), App.Vector(0.000762721, -0.000001997, 0.999999709), "ZXY"))
sketch17.addGeometry([
    Part.LineSegment(App.Vector(19.6, 1, 0), App.Vector(19.7, 20.4, 0)),
    Part.LineSegment(App.Vector(19.7, 20.4, 0), App.Vector(16.7, 20.4, 0)),
    Part.LineSegment(App.Vector(16.7, 20.4, 0), App.Vector(16.6, 1, 0)),
    Part.LineSegment(App.Vector(16.6, 1, 0), App.Vector(19.6, 1, 0)),
], False)
sketch17.addConstraint([
    Sketcher.Constraint("Coincident", 0, 2, 1, 1),
    Sketcher.Constraint("Coincident", 1, 2, 2, 1),
    Sketcher.Constraint("Coincident", 2, 2, 3, 1),
    Sketcher.Constraint("Coincident", 3, 2, 0, 1),
    Sketcher.Constraint("Perpendicular", 0, 1),
    Sketcher.Constraint("Perpendicular", 1, 2),
    Sketcher.Constraint("Perpendicular", 2, 3),
    Sketcher.Constraint("Distance", 1, Q("3 mm")),
    Sketcher.Constraint("Angle", 0, Q("89.85 deg")),
    Sketcher.Constraint("Distance", 0, Q("19.330672 mm")),
    Sketcher.Constraint("DistanceY", -1, 1, 1, 2, Q("20.36694 mm")),
    Sketcher.Constraint("DistanceX", -1, 1, 2, 2, Q("16.62126 mm")),
])
pad12 = body3.newObject("PartDesign::Pad", "Pad011")
pad12.Profile = sketch17
pad12.Length = 3

# Sketch on an angled plane
sketch18 = body3.newObject("Sketcher::SketchObject", "Sketch017")
sketch18.Placement = App.Placement(App.Vector(16.618428, -0.043507, -0.012675), App.Rotation(App.Vector(0.000762721, -0.000001997, 0.999999709), App.Vector(0.002617992, 0.999996573, 0), App.Vector(-0.999996282, 0.002617991, 0.000762723), "ZXY"))
sketch18.addGeometry([
    Part.LineSegment(App.Vector(33.4, 20.4, 0), App.Vector(33.4, 1.1, 0)),  # 0
    Part.LineSegment(App.Vector(33.4, 1.1, 0), App.Vector(43.9, 1.1, 0)),  # 1
    Part.LineSegment(App.Vector(43.9, 1.1, 0), App.Vector(43.9, 20.4, 0)),  # 2
    Part.LineSegment(App.Vector(43.9, 20.4, 0), App.Vector(33.4, 20.4, 0)),  # 3
    Part.Circle(App.Vector(37.4, 6, 0), App.Vector(0, 0, 1), 2.8),  # 4
    Part.Circle(App.Vector(37.4, 16, 0), App.Vector(0, 0, 1), 2.8),  # 5
], False)
sketch18.addConstraint([
    Sketcher.Constraint("Coincident", 0, 2, 1, 1),
    Sketcher.Constraint("Coincident", 1, 2, 2, 1),
    Sketcher.Constraint("Coincident", 2, 2, 3, 1),
    Sketcher.Constraint("Coincident", 3, 2, 0, 1),
    Sketcher.Constraint("Vertical", 0),
    Sketcher.Constraint("Horizontal", 1),
    Sketcher.Constraint("Vertical", 2),
    Sketcher.Constraint("Horizontal", 3),
    Sketcher.Constraint("Equal", 4, 5),
    Sketcher.Constraint("Diameter", 4, Q("5.5 mm")),
    Sketcher.Constraint("DistanceX", 1, 1, 1, 2, Q("10.5 mm")),
    Sketcher.Constraint("DistanceY", 4, 3, 5, 3, Q("10 mm")),
    Sketcher.Constraint("DistanceY", 0, 2, 0, 1, Q("19.330672 mm")),
    Sketcher.Constraint("DistanceY", -1, 1, 4, 3, Q("5.951439 mm")),
    Sketcher.Constraint("DistanceX", -1, 1, 4, 3, Q("37.383614 mm")),
    Sketcher.Constraint("DistanceX", -1, 1, 5, 3, Q("37.383594 mm")),
    Sketcher.Constraint("DistanceX", -1, 1, 0, 2, Q("33.392697 mm")),
    Sketcher.Constraint("DistanceY", -1, 1, 0, 2, Q("1.079845 mm")),
])
pad13 = body3.newObject("PartDesign::Pad", "Pad012")
pad13.Profile = sketch18
pad13.Length = 1
body4 = doc.addObject("PartDesign::Body", "Body003")

# Sketch on YZ plane
sketch19 = body4.newObject("Sketcher::SketchObject", "Sketch018")
sketch19.AttachmentSupport = (doc.getObject("YZ_Plane003"), [""])
sketch19.MapMode = "FlatFace"
sketch19.addGeometry([
    Part.LineSegment(App.Vector(-42, 74, 0), App.Vector(-52, 74, 0)),
    Part.ArcOfCircle(Part.Circle(App.Vector(-42, 74, 0), App.Vector(0, 0, 1), 10), math.radians(180), math.radians(270)),
    Part.LineSegment(App.Vector(-42, 64, 0), App.Vector(-42, 74, 0)),
], False)
sketch19.addGeometry(Part.LineSegment(App.Vector(-42, 74, 0), App.Vector(-52, 74, 0)), True)  # axis
sketch19.addConstraint([
    Sketcher.Constraint("Coincident", 0, 2, 1, 1),
    Sketcher.Constraint("Coincident", 1, 2, 2, 1),
    Sketcher.Constraint("Coincident", 2, 2, 0, 1),
    Sketcher.Constraint("Horizontal", 0),
    Sketcher.Constraint("Vertical", 2),
    Sketcher.Constraint("Horizontal", 3),
    Sketcher.Constraint("Coincident", 2, 2, 1, 3),
    Sketcher.Constraint("Coincident", 3, 1, 1, 3),
    Sketcher.Constraint("Equal", 0, 3),
    Sketcher.Constraint("Radius", 1, Q("10 mm")),
    Sketcher.Constraint("DistanceX", 1, 3, -1, 1, Q("42 mm")),
    Sketcher.Constraint("DistanceY", -1, 1, 1, 3, Q("73.699085 mm")),
])
revolution = body4.newObject("PartDesign::Revolution", "Revolution")
revolution.Profile = sketch19
revolution.ReferenceAxis = (sketch19, ["Axis0"])
revolution.Angle = 360
body.AllowCompound = True
doc.recompute()

boolean = body.newObject("PartDesign::Boolean", "Boolean")
boolean.Type = "Fuse"
boolean.addObjects([body4])

# Sketch on XZ plane
sketch20 = body.newObject("Sketcher::SketchObject", "Sketch019")
sketch20.AttachmentSupport = (doc.getObject("XZ_Plane"), [""])
sketch20.MapMode = "FlatFace"
sketch20.AttachmentOffset = App.Placement(App.Vector(0, 0, 22), App.Rotation())
sketch20.addGeometry([
    Part.LineSegment(App.Vector(-15, 89, 0), App.Vector(-15, 59, 0)),
    Part.LineSegment(App.Vector(-15, 59, 0), App.Vector(15, 59, 0)),
    Part.LineSegment(App.Vector(15, 59, 0), App.Vector(15, 89, 0)),
    Part.LineSegment(App.Vector(15, 89, 0), App.Vector(-15, 89, 0)),
], False)
sketch20.addConstraint([
    Sketcher.Constraint("Coincident", 0, 2, 1, 1),
    Sketcher.Constraint("Coincident", 1, 2, 2, 1),
    Sketcher.Constraint("Coincident", 2, 2, 3, 1),
    Sketcher.Constraint("Coincident", 3, 2, 0, 1),
    Sketcher.Constraint("Vertical", 0),
    Sketcher.Constraint("Horizontal", 1),
    Sketcher.Constraint("Vertical", 2),
    Sketcher.Constraint("Horizontal", 3),
    Sketcher.Constraint("Equal", 3, 0),
    Sketcher.Constraint("DistanceX", 1, 1, 1, 2, Q("30 mm")),
    Sketcher.Constraint("DistanceX", 0, 2, -1, 1, Q("15 mm")),
    Sketcher.Constraint("DistanceY", -1, 1, 0, 2, Q("58.699085 mm")),
])
pad14 = body.newObject("PartDesign::Pad", "Pad013")
pad14.Profile = sketch20
pad14.Length = 20

# Sketch on XZ plane
sketch21 = body.newObject("Sketcher::SketchObject", "Sketch020")
sketch21.AttachmentSupport = (doc.getObject("XZ_Plane"), [""])
sketch21.MapMode = "FlatFace"
sketch21.AttachmentOffset = App.Placement(App.Vector(0, 0, 3), App.Rotation())
sketch21.addGeometry([
    Part.LineSegment(App.Vector(-30.5, 53.7, 0), App.Vector(-30.5, 48.7, 0)),  # 0
    Part.LineSegment(App.Vector(-30.5, 48.7, 0), App.Vector(30.5, 48.7, 0)),  # 1
    Part.LineSegment(App.Vector(30.5, 48.7, 0), App.Vector(30.5, 53.7, 0)),  # 2
    Part.LineSegment(App.Vector(30.5, 53.7, 0), App.Vector(-30.5, 53.7, 0)),  # 3
    Part.Circle(App.Vector(-24.1, 51.2, 0), App.Vector(0, 0, 1), 1.5),  # 4
    Part.Circle(App.Vector(24.3, 51.2, 0), App.Vector(0, 0, 1), 1.5),  # 5
], False)
sketch21.addConstraint([
    Sketcher.Constraint("Coincident", 0, 2, 1, 1),
    Sketcher.Constraint("Coincident", 1, 2, 2, 1),
    Sketcher.Constraint("Coincident", 2, 2, 3, 1),
    Sketcher.Constraint("Coincident", 3, 2, 0, 1),
    Sketcher.Constraint("Vertical", 0),
    Sketcher.Constraint("Horizontal", 1),
    Sketcher.Constraint("Vertical", 2),
    Sketcher.Constraint("Horizontal", 3),
    Sketcher.Constraint("Equal", 4, 5),
    Sketcher.Constraint("Horizontal", 4, 3, 5, 3),
    Sketcher.Constraint("Diameter", 4, Q("3 mm")),
    Sketcher.Constraint("DistanceY", 0, 2, 0, 1, Q("5 mm")),
    Sketcher.Constraint("DistanceX", -1, 1, 1, 2, Q("30.5 mm")),
    Sketcher.Constraint("DistanceY", 0, 2, 4, 3, Q("2.5 mm")),
    Sketcher.Constraint("DistanceX", 4, 3, -1, 1, Q("24.13 mm")),
    Sketcher.Constraint("DistanceX", 1, 1, 1, 2, Q("60.997266 mm")),
    Sketcher.Constraint("DistanceX", -1, 1, 5, 3, Q("24.250642 mm")),
    Sketcher.Constraint("DistanceY", -1, 1, 4, 3, Q("51.199085 mm")),
])
pad15 = body.newObject("PartDesign::Pad", "Pad014")
pad15.Profile = sketch21
pad15.Length = 2

# Sketch on XZ plane
sketch22 = body.newObject("Sketcher::SketchObject", "Sketch021")
sketch22.AttachmentSupport = (doc.getObject("XZ_Plane"), [""])
sketch22.MapMode = "FlatFace"
sketch22.AttachmentOffset = App.Placement(App.Vector(0, 0, 5), App.Rotation())
sketch22.addGeometry([
    Part.Circle(App.Vector(24.3, 51.2, 0), App.Vector(0, 0, 1), 1.5),
    Part.Circle(App.Vector(-24.1, 51.2, 0), App.Vector(0, 0, 1), 1.5),
], False)
sketch22.addConstraint([
    Sketcher.Constraint("Equal", 0, 1),
    Sketcher.Constraint("Horizontal", 0, 3, 1, 3),
    Sketcher.Constraint("Diameter", 0, Q("3 mm")),
    Sketcher.Constraint("DistanceX", 1, 3, -1, 1, Q("24.13 mm")),
    Sketcher.Constraint("DistanceX", -1, 1, 0, 3, Q("24.250642 mm")),
    Sketcher.Constraint("DistanceY", -1, 1, 0, 3, Q("51.199085 mm")),
])
pocket6 = body.newObject("PartDesign::Pocket", "Pocket005")
pocket6.Profile = sketch22
pocket6.Type = "ThroughAll"

# Sketch on YZ plane
sketch23 = body.newObject("Sketcher::SketchObject", "Sketch022")
sketch23.AttachmentSupport = (doc.getObject("YZ_Plane"), [""])
sketch23.MapMode = "FlatFace"
sketch23.AttachmentOffset = App.Placement(App.Vector(0, 0, -30.497266), App.Rotation())
sketch23.addGeometry([
    Part.LineSegment(App.Vector(1, 54, 0), App.Vector(-22, 54, 0)),
    Part.LineSegment(App.Vector(-22, 54, 0), App.Vector(-22, 94, 0)),
    Part.LineSegment(App.Vector(-22, 94, 0), App.Vector(1, 94, 0)),
    Part.LineSegment(App.Vector(1, 94, 0), App.Vector(1, 54, 0)),
], False)
sketch23.addConstraint([
    Sketcher.Constraint("Coincident", 0, 2, 1, 1),
    Sketcher.Constraint("Coincident", 1, 2, 2, 1),
    Sketcher.Constraint("Coincident", 2, 2, 3, 1),
    Sketcher.Constraint("Coincident", 3, 2, 0, 1),
    Sketcher.Constraint("Horizontal", 0),
    Sketcher.Constraint("Vertical", 1),
    Sketcher.Constraint("Horizontal", 2),
    Sketcher.Constraint("Vertical", 3),
    Sketcher.Constraint("DistanceX", 0, 2, 0, 1, Q("23 mm")),
    Sketcher.Constraint("DistanceY", 1, 1, 1, 2, Q("40 mm")),
    Sketcher.Constraint("DistanceX", 0, 2, -1, 1, Q("22 mm")),
    Sketcher.Constraint("DistanceY", -1, 1, 0, 2, Q("53.699085 mm")),
])
pad16 = body.newObject("PartDesign::Pad", "Pad015")
pad16.Profile = sketch23
pad16.Length = 2
pad16.Reversed = True

# Sketch on YZ plane
sketch24 = body.newObject("Sketcher::SketchObject", "Sketch023")
sketch24.AttachmentSupport = (doc.getObject("YZ_Plane"), [""])
sketch24.MapMode = "FlatFace"
sketch24.AttachmentOffset = App.Placement(App.Vector(0, 0, 30.5), App.Rotation())
sketch24.addGeometry([
    Part.LineSegment(App.Vector(1, 94, 0), App.Vector(-22, 94, 0)),
    Part.LineSegment(App.Vector(-22, 94, 0), App.Vector(-22, 54, 0)),
    Part.LineSegment(App.Vector(-22, 54, 0), App.Vector(1, 54, 0)),
    Part.LineSegment(App.Vector(1, 54, 0), App.Vector(1, 94, 0)),
], False)
sketch24.addConstraint([
    Sketcher.Constraint("Coincident", 0, 2, 1, 1),
    Sketcher.Constraint("Coincident", 1, 2, 2, 1),
    Sketcher.Constraint("Coincident", 2, 2, 3, 1),
    Sketcher.Constraint("Coincident", 3, 2, 0, 1),
    Sketcher.Constraint("Horizontal", 0),
    Sketcher.Constraint("Vertical", 1),
    Sketcher.Constraint("Horizontal", 2),
    Sketcher.Constraint("Vertical", 3),
    Sketcher.Constraint("DistanceX", 0, 2, 0, 1, Q("23 mm")),
    Sketcher.Constraint("DistanceY", 1, 2, 1, 1, Q("40 mm")),
    Sketcher.Constraint("DistanceX", 0, 2, -1, 1, Q("22 mm")),
    Sketcher.Constraint("DistanceY", -1, 1, 0, 2, Q("93.699085 mm")),
])
pad17 = body.newObject("PartDesign::Pad", "Pad016")
pad17.Profile = sketch24
pad17.Length = 2

# Sketch on XY plane
sketch25 = body.newObject("Sketcher::SketchObject", "Sketch024")
sketch25.AttachmentSupport = (doc.getObject("XY_Plane"), [""])
sketch25.MapMode = "FlatFace"
sketch25.AttachmentOffset = App.Placement(App.Vector(0, 0, 93.699085), App.Rotation())
sketch25.addGeometry([
    Part.LineSegment(App.Vector(-32, 1, 0), App.Vector(-32, -5, 0)),
    Part.LineSegment(App.Vector(-32, -5, 0), App.Vector(32, -5, 0)),
    Part.LineSegment(App.Vector(32, -5, 0), App.Vector(32, 1, 0)),
    Part.LineSegment(App.Vector(32, 1, 0), App.Vector(-32, 1, 0)),
], False)
sketch25.addConstraint([
    Sketcher.Constraint("Coincident", 0, 2, 1, 1),
    Sketcher.Constraint("Coincident", 1, 2, 2, 1),
    Sketcher.Constraint("Coincident", 2, 2, 3, 1),
    Sketcher.Constraint("Coincident", 3, 2, 0, 1),
    Sketcher.Constraint("Vertical", 0),
    Sketcher.Constraint("Horizontal", 1),
    Sketcher.Constraint("Vertical", 2),
    Sketcher.Constraint("Horizontal", 3),
    Sketcher.Constraint("DistanceY", 0, 2, 0, 1, Q("6 mm")),
    Sketcher.Constraint("DistanceY", 0, 2, -1, 1, Q("5 mm")),
    Sketcher.Constraint("DistanceX", -1, 1, 1, 2, Q("32.5 mm")),
    Sketcher.Constraint("DistanceX", 1, 1, 1, 2, Q("64.997266 mm")),
])
pad18 = body.newObject("PartDesign::Pad", "Pad017")
pad18.Profile = sketch25
pad18.Length = 6

# Sketch on XZ plane
sketch26 = body.newObject("Sketcher::SketchObject", "Sketch025")
sketch26.AttachmentSupport = (doc.getObject("XZ_Plane"), [""])
sketch26.MapMode = "FlatFace"
sketch26.AttachmentOffset = App.Placement(App.Vector(0, 0, -1), App.Rotation())
sketch26.addGeometry([
    Part.Circle(App.Vector(-24.2, 94.9, 0), App.Vector(0, 0, 1), 1.5),
    Part.Circle(App.Vector(24.2, 94.9, 0), App.Vector(0, 0, 1), 1.5),
], False)
sketch26.addConstraint([
    Sketcher.Constraint("Equal", 0, 1),
    Sketcher.Constraint("Horizontal", 0, 3, 1, 3),
    Sketcher.Constraint("Diameter", 0, Q("3 mm")),
    Sketcher.Constraint("DistanceX", 0, 3, 1, 3, Q("48.380642 mm")),
    Sketcher.Constraint("DistanceX", 0, 3, -1, 1, Q("24.188954 mm")),
    Sketcher.Constraint("DistanceY", -1, 1, 0, 3, Q("94.949085 mm")),
])
pocket7 = body.newObject("PartDesign::Pocket", "Pocket006")
pocket7.Profile = sketch26
pocket7.Length = 6
pocket7.Reversed = True

doc.recompute()
